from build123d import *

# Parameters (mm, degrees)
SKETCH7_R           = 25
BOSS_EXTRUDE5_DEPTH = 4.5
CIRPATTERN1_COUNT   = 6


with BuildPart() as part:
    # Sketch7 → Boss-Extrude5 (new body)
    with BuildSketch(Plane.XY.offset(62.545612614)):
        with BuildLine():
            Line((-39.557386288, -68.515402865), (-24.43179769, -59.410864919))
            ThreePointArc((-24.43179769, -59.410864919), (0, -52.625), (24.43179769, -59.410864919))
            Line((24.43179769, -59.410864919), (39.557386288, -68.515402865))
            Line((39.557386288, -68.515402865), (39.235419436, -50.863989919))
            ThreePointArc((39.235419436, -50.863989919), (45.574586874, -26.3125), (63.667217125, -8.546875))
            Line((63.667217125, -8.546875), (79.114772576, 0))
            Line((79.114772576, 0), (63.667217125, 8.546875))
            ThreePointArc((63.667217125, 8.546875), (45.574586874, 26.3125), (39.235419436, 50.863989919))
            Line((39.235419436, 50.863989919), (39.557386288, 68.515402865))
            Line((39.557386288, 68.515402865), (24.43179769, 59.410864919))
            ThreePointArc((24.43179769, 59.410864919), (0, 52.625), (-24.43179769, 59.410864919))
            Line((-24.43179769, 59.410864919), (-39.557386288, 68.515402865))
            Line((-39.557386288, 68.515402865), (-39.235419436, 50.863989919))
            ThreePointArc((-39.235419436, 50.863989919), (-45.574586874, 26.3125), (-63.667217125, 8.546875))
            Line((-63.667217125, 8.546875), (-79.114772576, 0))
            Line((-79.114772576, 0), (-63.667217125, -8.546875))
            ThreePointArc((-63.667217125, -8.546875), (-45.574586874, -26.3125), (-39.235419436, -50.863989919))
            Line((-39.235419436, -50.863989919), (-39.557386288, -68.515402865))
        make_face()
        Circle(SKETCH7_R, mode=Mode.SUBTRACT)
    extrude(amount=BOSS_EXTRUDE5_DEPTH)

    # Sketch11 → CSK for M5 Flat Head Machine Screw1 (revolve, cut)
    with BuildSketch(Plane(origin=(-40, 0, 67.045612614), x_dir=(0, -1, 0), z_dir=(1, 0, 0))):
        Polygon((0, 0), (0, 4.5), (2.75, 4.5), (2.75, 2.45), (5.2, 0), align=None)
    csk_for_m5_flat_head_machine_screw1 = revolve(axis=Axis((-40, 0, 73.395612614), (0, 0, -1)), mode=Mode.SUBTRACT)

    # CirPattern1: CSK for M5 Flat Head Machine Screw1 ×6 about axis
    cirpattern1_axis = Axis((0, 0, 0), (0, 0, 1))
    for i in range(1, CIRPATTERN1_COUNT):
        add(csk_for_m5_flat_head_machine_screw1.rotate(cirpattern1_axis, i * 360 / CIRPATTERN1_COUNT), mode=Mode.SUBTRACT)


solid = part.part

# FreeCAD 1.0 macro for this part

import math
import FreeCAD as App
import Part
import Sketcher
Q = App.Units.Quantity

doc = App.newDocument("Part")
body = doc.addObject("PartDesign::Body", "Body")

# Sketch on XY plane
sketch1 = body.newObject("Sketcher::SketchObject", "Sketch")
sketch1.AttachmentSupport = (doc.getObject("XY_Plane"), [""])
sketch1.MapMode = "FlatFace"
sketch1.AttachmentOffset = App.Placement(App.Vector(0, 0, 62.545613), App.Rotation())
sketch1.addGeometry([
    Part.LineSegment(App.Vector(-40, -69, 0), App.Vector(-24, -59, 0)),  # 0
    Part.ArcOfCircle(Part.Circle(App.Vector(0, -100, 0), App.Vector(0, 0, 1), 47), math.radians(59), math.radians(121)),  # 1
    Part.LineSegment(App.Vector(24, -59, 0), App.Vector(40, -69, 0)),  # 2
    Part.LineSegment(App.Vector(40, -69, 0), App.Vector(39, -51, 0)),  # 3
    Part.ArcOfCircle(Part.Circle(App.Vector(87, -50, 0), App.Vector(0, 0, 1), 47), math.radians(119), math.radians(181)),  # 4
    Part.LineSegment(App.Vector(64, -9, 0), App.Vector(79, 0, 0)),  # 5
    Part.LineSegment(App.Vector(79, 0, 0), App.Vector(64, 9, 0)),  # 6
    Part.ArcOfCircle(Part.Circle(App.Vector(87, 50, 0), App.Vector(0, 0, 1), 47), math.radians(179), math.radians(241)),  # 7
    Part.LineSegment(App.Vector(39, 51, 0), App.Vector(40, 69, 0)),  # 8
    Part.LineSegment(App.Vector(40, 69, 0), App.Vector(24, 59, 0)),  # 9
    Part.ArcOfCircle(Part.Circle(App.Vector(0, 100, 0), App.Vector(0, 0, 1), 47), math.radians(-121), math.radians(-59)),  # 10
    Part.LineSegment(App.Vector(-24, 59, 0), App.Vector(-40, 69, 0)),  # 11
    Part.LineSegment(App.Vector(-40, 69, 0), App.Vector(-39, 51, 0)),  # 12
    Part.ArcOfCircle(Part.Circle(App.Vector(-87, 50, 0), App.Vector(0, 0, 1), 47), math.radians(-61), math.radians(1)),  # 13
    Part.LineSegment(App.Vector(-64, 9, 0), App.Vector(-79, 0, 0)),  # 14
    Part.LineSegment(App.Vector(-79, 0, 0), App.Vector(-64, -9, 0)),  # 15
    Part.ArcOfCircle(Part.Circle(App.Vector(-87, -50, 0), App.Vector(0, 0, 1), 47), math.radians(-1), math.radians(61)),  # 16
    Part.LineSegment(App.Vector(-39, -51, 0), App.Vector(-40, -69, 0)),  # 17
    Part.Circle(App.Vector(0, 0, 0), App.Vector(0, 0, 1), 25),  # 18
], False)
sketch1.addConstraint([
    Sketcher.Constraint("Tangent", 0, 2, 1, 2),
    Sketcher.Constraint("Tangent", 1, 1, 2, 1),
    Sketcher.Constraint("Coincident", 2, 2, 3, 1),
    Sketcher.Constraint("Tangent", 3, 2, 4, 2),
    Sketcher.Constraint("Tangent", 4, 1, 5, 1),
    Sketcher.Constraint("Coincident", 5, 2, 6, 1),
    Sketcher.Constraint("Tangent", 6, 2, 7, 2),
    Sketcher.Constraint("Tangent", 7, 1, 8, 1),
    Sketcher.Constraint("Coincident", 8, 2, 9, 1),
    Sketcher.Constraint("Tangent", 9, 2, 10, 2),
    Sketcher.Constraint("Tangent", 10, 1, 11, 1),
    Sketcher.Constraint("Coincident", 11, 2, 12, 1),
    Sketcher.Constraint("Tangent", 12, 2, 13, 2),
    Sketcher.Constraint("Tangent", 13, 1, 14, 1),
    Sketcher.Constraint("Coincident", 14, 2, 15, 1),
    Sketcher.Constraint("Tangent", 15, 2, 16, 2),
    Sketcher.Constraint("Tangent", 16, 1, 17, 1),
    Sketcher.Constraint("Coincident", 17, 2, 0, 1),
    Sketcher.Constraint("Coincident", 18, 3, -1, 1),
    Sketcher.Constraint("Equal", 1, 4),
    Sketcher.Constraint("Equal", 4, 7),
    Sketcher.Constraint("Equal", 7, 10),
    Sketcher.Constraint("Equal", 10, 13),
    Sketcher.Constraint("Equal", 13, 16),
    Sketcher.Constraint("Symmetric", 1, 3, 10, 3, -1, 1),
    Sketcher.Constraint("Symmetric", 4, 3, 13, 3, -1, 1),
    Sketcher.Constraint("Symmetric", 7, 3, 16, 3, -1, 1),
    Sketcher.Constraint("Symmetric", 2, 2, 11, 2, -1, 1),
    Sketcher.Constraint("Symmetric", 5, 2, 14, 2, -1, 1),
    Sketcher.Constraint("Symmetric", 8, 2, 17, 2, -1, 1),
    Sketcher.Constraint("Symmetric", 7, 3, 13, 3, -2),
    Sketcher.Constraint("Symmetric", 0, 2, 1, 1, -2),
    Sketcher.Constraint("PointOnObject", 5, 2, -1),
    Sketcher.Constraint("Horizontal", 8, 2, 11, 2),
    Sketcher.Constraint("Equal", 2, 3),
    Sketcher.Constraint("Equal", 3, 5),
    Sketcher.Constraint("Diameter", 18, Q("50 mm")),
    Sketcher.Constraint("DistanceY", 1, 3, -1, 1, Q("100 mm")),
    Sketcher.Constraint("DistanceY", 4, 3, -1, 1, Q("50 mm")),
    Sketcher.Constraint("Radius", 1, Q("47.375 mm")),
    Sketcher.Constraint("Distance", 0, Q("17.654349 mm")),
    Sketcher.Constraint("DistanceX", -1, 1, 4, 3, Q("86.60254 mm")),
])
pad1 = body.newObject("PartDesign::Pad", "Pad")
pad1.Profile = sketch1
pad1.Length = 4.5

# Sketch on YZ plane
sketch2 = body.newObject("Sketcher::SketchObject", "Sketch001")
sketch2.AttachmentSupport = (doc.getObject("YZ_Plane"), [""])
sketch2.MapMode = "FlatFace"
sketch2.AttachmentOffset = App.Placement(App.Vector(0, 0, -40), App.Rotation())
sketch2.addGeometry([
    Part.LineSegment(App.Vector(0, 62.5, 0), App.Vector(0, 67, 0)),  # 0
    Part.LineSegment(App.Vector(0, 67, 0), App.Vector(-5.2, 67, 0)),  # 1
    Part.LineSegment(App.Vector(-5.2, 67, 0), App.Vector(-2.8, 64.6, 0)),  # 2
    Part.LineSegment(App.Vector(-2.8, 64.6, 0), App.Vector(-2.8, 62.5, 0)),  # 3
    Part.LineSegment(App.Vector(-2.8, 62.5, 0), App.Vector(0, 62.5, 0)),  # 4
], False)
sketch2.addConstraint([
    Sketcher.Constraint("Coincident", 0, 2, 1, 1),
    Sketcher.Constraint("Coincident", 1, 2, 2, 1),
    Sketcher.Constraint("Coincident", 2, 2, 3, 1),
    Sketcher.Constraint("Coincident", 3, 2, 4, 1),
    Sketcher.Constraint("Coincident", 4, 2, 0, 1),
    Sketcher.Constraint("Vertical", 0),
    Sketcher.Constraint("Horizontal", 1),
    Sketcher.Constraint("Vertical", 3),
    Sketcher.Constraint("Horizontal", 4),
    Sketcher.Constraint("PointOnObject", 0, 2, -2),
    Sketcher.Constraint("Angle", 2, Q("-45 deg")),
    Sketcher.Constraint("DistanceX", 1, 2, 1, 1, Q("5.2 mm")),
    Sketcher.Constraint("DistanceY", 0, 1, 0, 2, Q("4.5 mm")),
    Sketcher.Constraint("DistanceX", 4, 1, 4, 2, Q("2.75 mm")),
    Sketcher.Constraint("DistanceY", -1, 1, 0, 2, Q("67.045613 mm")),
])
groove = body.newObject("PartDesign::Groove", "Groove")
groove.Profile = sketch2
groove.ReferenceAxis = (sketch2, ["V_Axis"])
groove.Angle = 360
doc.recompute()

polarpattern = body.newObject("PartDesign::PolarPattern", "PolarPattern")
polarpattern.Originals = [groove]
polarpattern.Axis = (doc.getObject("Z_Axis"), [""])
polarpattern.Angle = 360
polarpattern.Occurrences = 6
body.Tip = polarpattern

doc.recompute()
